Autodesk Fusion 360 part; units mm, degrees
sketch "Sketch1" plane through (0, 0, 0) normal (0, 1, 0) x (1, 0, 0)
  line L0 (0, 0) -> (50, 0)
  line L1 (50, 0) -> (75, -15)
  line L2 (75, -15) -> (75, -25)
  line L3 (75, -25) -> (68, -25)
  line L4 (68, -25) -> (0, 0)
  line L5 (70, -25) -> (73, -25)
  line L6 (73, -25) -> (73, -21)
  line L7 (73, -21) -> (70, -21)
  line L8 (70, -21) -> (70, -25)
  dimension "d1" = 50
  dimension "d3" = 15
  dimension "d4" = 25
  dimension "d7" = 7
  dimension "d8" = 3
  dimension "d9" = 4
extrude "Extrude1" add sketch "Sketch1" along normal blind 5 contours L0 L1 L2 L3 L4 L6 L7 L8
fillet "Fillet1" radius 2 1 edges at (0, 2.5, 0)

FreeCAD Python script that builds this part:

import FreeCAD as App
import Part
import Sketcher


def edges_at(feature, points):
    """Names of the edges that pass closest to the given points."""
    edges = feature.Shape.Edges
    near = lambda p: min(range(len(edges)), key=lambda i: edges[i].distToShape(Part.Vertex(*p))[0])
    return sorted({f"Edge{near(p) + 1}" for p in points})


def add_polygon(sketch, points):
    """Adds a closed chain of lines whose ends are joined by coincident constraints."""
    first, n = sketch.GeometryCount, len(points)
    for a, b in zip(points, points[1:] + points[:1]):
        sketch.addGeometry(Part.LineSegment(App.Vector(*a, 0), App.Vector(*b, 0)), False)
    for i in range(n):
        sketch.addConstraint(Sketcher.Constraint("Coincident", first + i, 2, first + (i + 1) % n, 1))

doc = App.newDocument("Part")
params = doc.addObject("Spreadsheet::Sheet", "Params")
for row, (alias, value) in enumerate([
    ("sketch1_width", "50 mm"),
    ("sketch1_width2", "3 mm"),
    ("sketch1_height", "4 mm"),
    ("pad1_length", "5 mm"),
    ("fillet_radius", "2 mm"),
], start=1):
    params.set(f"A{row}", alias)
    params.set(f"B{row}", "=" + value)
    params.setAlias(f"B{row}", alias)

body = doc.addObject("PartDesign::Body", "Body")

sketch1 = body.newObject("Sketcher::SketchObject", "Sketch")
sketch1.AttachmentSupport = (doc.getObject("XZ_Plane"), [""])
sketch1.MapMode = "FlatFace"
add_polygon(sketch1, [(50, 0), (0, 0), (68, 25), (70, 25), (70, 21), (73, 21), (73, 25), (75, 25), (75, 15)])
sketch1.addConstraint([
    Sketcher.Constraint("Horizontal", 0),
    Sketcher.Constraint("Horizontal", 2),
    Sketcher.Constraint("Vertical", 3),
    Sketcher.Constraint("Horizontal", 4),
    Sketcher.Constraint("Vertical", 5),
    Sketcher.Constraint("Horizontal", 6),
    Sketcher.Constraint("Vertical", 7),
    Sketcher.Constraint("Coincident", 0, 2, -1, 1),
    Sketcher.Constraint("Horizontal", 2, 2, 5, 2),
    Sketcher.Constraint("Equal", 2, 6),
    Sketcher.Constraint("DistanceX", 0, 2, 0, 1, 50.0),
    Sketcher.Constraint("DistanceX", 4, 1, 4, 2, 3.0),
    Sketcher.Constraint("DistanceY", 3, 2, 3, 1, 4.0),
    Sketcher.Constraint("DistanceY", -1, 1, 1, 2, 25.0),
    Sketcher.Constraint("DistanceY", -1, 1, 7, 2, 15.0),
    Sketcher.Constraint("DistanceX", 1, 2, 6, 2, 7.0),
    Sketcher.Constraint("DistanceX", 8, 2, 7, 2, 25.0),
])
sketch1.setExpression("Constraints[19]", "Params.sketch1_width")
sketch1.setExpression("Constraints[20]", "Params.sketch1_width2")
sketch1.setExpression("Constraints[21]", "Params.sketch1_height")
pad1 = body.newObject("PartDesign::Pad", "Pad")
pad1.Profile = sketch1
pad1.setExpression("Length", "Params.pad1_length")
pad1.Reversed = True
doc.recompute()

fillet = body.newObject("PartDesign::Fillet", "Fillet")
fillet.Base = (pad1, edges_at(pad1, [(0, 2.5, 0)]))
fillet.setExpression("Radius", "Params.fillet_radius")

doc.recompute()
